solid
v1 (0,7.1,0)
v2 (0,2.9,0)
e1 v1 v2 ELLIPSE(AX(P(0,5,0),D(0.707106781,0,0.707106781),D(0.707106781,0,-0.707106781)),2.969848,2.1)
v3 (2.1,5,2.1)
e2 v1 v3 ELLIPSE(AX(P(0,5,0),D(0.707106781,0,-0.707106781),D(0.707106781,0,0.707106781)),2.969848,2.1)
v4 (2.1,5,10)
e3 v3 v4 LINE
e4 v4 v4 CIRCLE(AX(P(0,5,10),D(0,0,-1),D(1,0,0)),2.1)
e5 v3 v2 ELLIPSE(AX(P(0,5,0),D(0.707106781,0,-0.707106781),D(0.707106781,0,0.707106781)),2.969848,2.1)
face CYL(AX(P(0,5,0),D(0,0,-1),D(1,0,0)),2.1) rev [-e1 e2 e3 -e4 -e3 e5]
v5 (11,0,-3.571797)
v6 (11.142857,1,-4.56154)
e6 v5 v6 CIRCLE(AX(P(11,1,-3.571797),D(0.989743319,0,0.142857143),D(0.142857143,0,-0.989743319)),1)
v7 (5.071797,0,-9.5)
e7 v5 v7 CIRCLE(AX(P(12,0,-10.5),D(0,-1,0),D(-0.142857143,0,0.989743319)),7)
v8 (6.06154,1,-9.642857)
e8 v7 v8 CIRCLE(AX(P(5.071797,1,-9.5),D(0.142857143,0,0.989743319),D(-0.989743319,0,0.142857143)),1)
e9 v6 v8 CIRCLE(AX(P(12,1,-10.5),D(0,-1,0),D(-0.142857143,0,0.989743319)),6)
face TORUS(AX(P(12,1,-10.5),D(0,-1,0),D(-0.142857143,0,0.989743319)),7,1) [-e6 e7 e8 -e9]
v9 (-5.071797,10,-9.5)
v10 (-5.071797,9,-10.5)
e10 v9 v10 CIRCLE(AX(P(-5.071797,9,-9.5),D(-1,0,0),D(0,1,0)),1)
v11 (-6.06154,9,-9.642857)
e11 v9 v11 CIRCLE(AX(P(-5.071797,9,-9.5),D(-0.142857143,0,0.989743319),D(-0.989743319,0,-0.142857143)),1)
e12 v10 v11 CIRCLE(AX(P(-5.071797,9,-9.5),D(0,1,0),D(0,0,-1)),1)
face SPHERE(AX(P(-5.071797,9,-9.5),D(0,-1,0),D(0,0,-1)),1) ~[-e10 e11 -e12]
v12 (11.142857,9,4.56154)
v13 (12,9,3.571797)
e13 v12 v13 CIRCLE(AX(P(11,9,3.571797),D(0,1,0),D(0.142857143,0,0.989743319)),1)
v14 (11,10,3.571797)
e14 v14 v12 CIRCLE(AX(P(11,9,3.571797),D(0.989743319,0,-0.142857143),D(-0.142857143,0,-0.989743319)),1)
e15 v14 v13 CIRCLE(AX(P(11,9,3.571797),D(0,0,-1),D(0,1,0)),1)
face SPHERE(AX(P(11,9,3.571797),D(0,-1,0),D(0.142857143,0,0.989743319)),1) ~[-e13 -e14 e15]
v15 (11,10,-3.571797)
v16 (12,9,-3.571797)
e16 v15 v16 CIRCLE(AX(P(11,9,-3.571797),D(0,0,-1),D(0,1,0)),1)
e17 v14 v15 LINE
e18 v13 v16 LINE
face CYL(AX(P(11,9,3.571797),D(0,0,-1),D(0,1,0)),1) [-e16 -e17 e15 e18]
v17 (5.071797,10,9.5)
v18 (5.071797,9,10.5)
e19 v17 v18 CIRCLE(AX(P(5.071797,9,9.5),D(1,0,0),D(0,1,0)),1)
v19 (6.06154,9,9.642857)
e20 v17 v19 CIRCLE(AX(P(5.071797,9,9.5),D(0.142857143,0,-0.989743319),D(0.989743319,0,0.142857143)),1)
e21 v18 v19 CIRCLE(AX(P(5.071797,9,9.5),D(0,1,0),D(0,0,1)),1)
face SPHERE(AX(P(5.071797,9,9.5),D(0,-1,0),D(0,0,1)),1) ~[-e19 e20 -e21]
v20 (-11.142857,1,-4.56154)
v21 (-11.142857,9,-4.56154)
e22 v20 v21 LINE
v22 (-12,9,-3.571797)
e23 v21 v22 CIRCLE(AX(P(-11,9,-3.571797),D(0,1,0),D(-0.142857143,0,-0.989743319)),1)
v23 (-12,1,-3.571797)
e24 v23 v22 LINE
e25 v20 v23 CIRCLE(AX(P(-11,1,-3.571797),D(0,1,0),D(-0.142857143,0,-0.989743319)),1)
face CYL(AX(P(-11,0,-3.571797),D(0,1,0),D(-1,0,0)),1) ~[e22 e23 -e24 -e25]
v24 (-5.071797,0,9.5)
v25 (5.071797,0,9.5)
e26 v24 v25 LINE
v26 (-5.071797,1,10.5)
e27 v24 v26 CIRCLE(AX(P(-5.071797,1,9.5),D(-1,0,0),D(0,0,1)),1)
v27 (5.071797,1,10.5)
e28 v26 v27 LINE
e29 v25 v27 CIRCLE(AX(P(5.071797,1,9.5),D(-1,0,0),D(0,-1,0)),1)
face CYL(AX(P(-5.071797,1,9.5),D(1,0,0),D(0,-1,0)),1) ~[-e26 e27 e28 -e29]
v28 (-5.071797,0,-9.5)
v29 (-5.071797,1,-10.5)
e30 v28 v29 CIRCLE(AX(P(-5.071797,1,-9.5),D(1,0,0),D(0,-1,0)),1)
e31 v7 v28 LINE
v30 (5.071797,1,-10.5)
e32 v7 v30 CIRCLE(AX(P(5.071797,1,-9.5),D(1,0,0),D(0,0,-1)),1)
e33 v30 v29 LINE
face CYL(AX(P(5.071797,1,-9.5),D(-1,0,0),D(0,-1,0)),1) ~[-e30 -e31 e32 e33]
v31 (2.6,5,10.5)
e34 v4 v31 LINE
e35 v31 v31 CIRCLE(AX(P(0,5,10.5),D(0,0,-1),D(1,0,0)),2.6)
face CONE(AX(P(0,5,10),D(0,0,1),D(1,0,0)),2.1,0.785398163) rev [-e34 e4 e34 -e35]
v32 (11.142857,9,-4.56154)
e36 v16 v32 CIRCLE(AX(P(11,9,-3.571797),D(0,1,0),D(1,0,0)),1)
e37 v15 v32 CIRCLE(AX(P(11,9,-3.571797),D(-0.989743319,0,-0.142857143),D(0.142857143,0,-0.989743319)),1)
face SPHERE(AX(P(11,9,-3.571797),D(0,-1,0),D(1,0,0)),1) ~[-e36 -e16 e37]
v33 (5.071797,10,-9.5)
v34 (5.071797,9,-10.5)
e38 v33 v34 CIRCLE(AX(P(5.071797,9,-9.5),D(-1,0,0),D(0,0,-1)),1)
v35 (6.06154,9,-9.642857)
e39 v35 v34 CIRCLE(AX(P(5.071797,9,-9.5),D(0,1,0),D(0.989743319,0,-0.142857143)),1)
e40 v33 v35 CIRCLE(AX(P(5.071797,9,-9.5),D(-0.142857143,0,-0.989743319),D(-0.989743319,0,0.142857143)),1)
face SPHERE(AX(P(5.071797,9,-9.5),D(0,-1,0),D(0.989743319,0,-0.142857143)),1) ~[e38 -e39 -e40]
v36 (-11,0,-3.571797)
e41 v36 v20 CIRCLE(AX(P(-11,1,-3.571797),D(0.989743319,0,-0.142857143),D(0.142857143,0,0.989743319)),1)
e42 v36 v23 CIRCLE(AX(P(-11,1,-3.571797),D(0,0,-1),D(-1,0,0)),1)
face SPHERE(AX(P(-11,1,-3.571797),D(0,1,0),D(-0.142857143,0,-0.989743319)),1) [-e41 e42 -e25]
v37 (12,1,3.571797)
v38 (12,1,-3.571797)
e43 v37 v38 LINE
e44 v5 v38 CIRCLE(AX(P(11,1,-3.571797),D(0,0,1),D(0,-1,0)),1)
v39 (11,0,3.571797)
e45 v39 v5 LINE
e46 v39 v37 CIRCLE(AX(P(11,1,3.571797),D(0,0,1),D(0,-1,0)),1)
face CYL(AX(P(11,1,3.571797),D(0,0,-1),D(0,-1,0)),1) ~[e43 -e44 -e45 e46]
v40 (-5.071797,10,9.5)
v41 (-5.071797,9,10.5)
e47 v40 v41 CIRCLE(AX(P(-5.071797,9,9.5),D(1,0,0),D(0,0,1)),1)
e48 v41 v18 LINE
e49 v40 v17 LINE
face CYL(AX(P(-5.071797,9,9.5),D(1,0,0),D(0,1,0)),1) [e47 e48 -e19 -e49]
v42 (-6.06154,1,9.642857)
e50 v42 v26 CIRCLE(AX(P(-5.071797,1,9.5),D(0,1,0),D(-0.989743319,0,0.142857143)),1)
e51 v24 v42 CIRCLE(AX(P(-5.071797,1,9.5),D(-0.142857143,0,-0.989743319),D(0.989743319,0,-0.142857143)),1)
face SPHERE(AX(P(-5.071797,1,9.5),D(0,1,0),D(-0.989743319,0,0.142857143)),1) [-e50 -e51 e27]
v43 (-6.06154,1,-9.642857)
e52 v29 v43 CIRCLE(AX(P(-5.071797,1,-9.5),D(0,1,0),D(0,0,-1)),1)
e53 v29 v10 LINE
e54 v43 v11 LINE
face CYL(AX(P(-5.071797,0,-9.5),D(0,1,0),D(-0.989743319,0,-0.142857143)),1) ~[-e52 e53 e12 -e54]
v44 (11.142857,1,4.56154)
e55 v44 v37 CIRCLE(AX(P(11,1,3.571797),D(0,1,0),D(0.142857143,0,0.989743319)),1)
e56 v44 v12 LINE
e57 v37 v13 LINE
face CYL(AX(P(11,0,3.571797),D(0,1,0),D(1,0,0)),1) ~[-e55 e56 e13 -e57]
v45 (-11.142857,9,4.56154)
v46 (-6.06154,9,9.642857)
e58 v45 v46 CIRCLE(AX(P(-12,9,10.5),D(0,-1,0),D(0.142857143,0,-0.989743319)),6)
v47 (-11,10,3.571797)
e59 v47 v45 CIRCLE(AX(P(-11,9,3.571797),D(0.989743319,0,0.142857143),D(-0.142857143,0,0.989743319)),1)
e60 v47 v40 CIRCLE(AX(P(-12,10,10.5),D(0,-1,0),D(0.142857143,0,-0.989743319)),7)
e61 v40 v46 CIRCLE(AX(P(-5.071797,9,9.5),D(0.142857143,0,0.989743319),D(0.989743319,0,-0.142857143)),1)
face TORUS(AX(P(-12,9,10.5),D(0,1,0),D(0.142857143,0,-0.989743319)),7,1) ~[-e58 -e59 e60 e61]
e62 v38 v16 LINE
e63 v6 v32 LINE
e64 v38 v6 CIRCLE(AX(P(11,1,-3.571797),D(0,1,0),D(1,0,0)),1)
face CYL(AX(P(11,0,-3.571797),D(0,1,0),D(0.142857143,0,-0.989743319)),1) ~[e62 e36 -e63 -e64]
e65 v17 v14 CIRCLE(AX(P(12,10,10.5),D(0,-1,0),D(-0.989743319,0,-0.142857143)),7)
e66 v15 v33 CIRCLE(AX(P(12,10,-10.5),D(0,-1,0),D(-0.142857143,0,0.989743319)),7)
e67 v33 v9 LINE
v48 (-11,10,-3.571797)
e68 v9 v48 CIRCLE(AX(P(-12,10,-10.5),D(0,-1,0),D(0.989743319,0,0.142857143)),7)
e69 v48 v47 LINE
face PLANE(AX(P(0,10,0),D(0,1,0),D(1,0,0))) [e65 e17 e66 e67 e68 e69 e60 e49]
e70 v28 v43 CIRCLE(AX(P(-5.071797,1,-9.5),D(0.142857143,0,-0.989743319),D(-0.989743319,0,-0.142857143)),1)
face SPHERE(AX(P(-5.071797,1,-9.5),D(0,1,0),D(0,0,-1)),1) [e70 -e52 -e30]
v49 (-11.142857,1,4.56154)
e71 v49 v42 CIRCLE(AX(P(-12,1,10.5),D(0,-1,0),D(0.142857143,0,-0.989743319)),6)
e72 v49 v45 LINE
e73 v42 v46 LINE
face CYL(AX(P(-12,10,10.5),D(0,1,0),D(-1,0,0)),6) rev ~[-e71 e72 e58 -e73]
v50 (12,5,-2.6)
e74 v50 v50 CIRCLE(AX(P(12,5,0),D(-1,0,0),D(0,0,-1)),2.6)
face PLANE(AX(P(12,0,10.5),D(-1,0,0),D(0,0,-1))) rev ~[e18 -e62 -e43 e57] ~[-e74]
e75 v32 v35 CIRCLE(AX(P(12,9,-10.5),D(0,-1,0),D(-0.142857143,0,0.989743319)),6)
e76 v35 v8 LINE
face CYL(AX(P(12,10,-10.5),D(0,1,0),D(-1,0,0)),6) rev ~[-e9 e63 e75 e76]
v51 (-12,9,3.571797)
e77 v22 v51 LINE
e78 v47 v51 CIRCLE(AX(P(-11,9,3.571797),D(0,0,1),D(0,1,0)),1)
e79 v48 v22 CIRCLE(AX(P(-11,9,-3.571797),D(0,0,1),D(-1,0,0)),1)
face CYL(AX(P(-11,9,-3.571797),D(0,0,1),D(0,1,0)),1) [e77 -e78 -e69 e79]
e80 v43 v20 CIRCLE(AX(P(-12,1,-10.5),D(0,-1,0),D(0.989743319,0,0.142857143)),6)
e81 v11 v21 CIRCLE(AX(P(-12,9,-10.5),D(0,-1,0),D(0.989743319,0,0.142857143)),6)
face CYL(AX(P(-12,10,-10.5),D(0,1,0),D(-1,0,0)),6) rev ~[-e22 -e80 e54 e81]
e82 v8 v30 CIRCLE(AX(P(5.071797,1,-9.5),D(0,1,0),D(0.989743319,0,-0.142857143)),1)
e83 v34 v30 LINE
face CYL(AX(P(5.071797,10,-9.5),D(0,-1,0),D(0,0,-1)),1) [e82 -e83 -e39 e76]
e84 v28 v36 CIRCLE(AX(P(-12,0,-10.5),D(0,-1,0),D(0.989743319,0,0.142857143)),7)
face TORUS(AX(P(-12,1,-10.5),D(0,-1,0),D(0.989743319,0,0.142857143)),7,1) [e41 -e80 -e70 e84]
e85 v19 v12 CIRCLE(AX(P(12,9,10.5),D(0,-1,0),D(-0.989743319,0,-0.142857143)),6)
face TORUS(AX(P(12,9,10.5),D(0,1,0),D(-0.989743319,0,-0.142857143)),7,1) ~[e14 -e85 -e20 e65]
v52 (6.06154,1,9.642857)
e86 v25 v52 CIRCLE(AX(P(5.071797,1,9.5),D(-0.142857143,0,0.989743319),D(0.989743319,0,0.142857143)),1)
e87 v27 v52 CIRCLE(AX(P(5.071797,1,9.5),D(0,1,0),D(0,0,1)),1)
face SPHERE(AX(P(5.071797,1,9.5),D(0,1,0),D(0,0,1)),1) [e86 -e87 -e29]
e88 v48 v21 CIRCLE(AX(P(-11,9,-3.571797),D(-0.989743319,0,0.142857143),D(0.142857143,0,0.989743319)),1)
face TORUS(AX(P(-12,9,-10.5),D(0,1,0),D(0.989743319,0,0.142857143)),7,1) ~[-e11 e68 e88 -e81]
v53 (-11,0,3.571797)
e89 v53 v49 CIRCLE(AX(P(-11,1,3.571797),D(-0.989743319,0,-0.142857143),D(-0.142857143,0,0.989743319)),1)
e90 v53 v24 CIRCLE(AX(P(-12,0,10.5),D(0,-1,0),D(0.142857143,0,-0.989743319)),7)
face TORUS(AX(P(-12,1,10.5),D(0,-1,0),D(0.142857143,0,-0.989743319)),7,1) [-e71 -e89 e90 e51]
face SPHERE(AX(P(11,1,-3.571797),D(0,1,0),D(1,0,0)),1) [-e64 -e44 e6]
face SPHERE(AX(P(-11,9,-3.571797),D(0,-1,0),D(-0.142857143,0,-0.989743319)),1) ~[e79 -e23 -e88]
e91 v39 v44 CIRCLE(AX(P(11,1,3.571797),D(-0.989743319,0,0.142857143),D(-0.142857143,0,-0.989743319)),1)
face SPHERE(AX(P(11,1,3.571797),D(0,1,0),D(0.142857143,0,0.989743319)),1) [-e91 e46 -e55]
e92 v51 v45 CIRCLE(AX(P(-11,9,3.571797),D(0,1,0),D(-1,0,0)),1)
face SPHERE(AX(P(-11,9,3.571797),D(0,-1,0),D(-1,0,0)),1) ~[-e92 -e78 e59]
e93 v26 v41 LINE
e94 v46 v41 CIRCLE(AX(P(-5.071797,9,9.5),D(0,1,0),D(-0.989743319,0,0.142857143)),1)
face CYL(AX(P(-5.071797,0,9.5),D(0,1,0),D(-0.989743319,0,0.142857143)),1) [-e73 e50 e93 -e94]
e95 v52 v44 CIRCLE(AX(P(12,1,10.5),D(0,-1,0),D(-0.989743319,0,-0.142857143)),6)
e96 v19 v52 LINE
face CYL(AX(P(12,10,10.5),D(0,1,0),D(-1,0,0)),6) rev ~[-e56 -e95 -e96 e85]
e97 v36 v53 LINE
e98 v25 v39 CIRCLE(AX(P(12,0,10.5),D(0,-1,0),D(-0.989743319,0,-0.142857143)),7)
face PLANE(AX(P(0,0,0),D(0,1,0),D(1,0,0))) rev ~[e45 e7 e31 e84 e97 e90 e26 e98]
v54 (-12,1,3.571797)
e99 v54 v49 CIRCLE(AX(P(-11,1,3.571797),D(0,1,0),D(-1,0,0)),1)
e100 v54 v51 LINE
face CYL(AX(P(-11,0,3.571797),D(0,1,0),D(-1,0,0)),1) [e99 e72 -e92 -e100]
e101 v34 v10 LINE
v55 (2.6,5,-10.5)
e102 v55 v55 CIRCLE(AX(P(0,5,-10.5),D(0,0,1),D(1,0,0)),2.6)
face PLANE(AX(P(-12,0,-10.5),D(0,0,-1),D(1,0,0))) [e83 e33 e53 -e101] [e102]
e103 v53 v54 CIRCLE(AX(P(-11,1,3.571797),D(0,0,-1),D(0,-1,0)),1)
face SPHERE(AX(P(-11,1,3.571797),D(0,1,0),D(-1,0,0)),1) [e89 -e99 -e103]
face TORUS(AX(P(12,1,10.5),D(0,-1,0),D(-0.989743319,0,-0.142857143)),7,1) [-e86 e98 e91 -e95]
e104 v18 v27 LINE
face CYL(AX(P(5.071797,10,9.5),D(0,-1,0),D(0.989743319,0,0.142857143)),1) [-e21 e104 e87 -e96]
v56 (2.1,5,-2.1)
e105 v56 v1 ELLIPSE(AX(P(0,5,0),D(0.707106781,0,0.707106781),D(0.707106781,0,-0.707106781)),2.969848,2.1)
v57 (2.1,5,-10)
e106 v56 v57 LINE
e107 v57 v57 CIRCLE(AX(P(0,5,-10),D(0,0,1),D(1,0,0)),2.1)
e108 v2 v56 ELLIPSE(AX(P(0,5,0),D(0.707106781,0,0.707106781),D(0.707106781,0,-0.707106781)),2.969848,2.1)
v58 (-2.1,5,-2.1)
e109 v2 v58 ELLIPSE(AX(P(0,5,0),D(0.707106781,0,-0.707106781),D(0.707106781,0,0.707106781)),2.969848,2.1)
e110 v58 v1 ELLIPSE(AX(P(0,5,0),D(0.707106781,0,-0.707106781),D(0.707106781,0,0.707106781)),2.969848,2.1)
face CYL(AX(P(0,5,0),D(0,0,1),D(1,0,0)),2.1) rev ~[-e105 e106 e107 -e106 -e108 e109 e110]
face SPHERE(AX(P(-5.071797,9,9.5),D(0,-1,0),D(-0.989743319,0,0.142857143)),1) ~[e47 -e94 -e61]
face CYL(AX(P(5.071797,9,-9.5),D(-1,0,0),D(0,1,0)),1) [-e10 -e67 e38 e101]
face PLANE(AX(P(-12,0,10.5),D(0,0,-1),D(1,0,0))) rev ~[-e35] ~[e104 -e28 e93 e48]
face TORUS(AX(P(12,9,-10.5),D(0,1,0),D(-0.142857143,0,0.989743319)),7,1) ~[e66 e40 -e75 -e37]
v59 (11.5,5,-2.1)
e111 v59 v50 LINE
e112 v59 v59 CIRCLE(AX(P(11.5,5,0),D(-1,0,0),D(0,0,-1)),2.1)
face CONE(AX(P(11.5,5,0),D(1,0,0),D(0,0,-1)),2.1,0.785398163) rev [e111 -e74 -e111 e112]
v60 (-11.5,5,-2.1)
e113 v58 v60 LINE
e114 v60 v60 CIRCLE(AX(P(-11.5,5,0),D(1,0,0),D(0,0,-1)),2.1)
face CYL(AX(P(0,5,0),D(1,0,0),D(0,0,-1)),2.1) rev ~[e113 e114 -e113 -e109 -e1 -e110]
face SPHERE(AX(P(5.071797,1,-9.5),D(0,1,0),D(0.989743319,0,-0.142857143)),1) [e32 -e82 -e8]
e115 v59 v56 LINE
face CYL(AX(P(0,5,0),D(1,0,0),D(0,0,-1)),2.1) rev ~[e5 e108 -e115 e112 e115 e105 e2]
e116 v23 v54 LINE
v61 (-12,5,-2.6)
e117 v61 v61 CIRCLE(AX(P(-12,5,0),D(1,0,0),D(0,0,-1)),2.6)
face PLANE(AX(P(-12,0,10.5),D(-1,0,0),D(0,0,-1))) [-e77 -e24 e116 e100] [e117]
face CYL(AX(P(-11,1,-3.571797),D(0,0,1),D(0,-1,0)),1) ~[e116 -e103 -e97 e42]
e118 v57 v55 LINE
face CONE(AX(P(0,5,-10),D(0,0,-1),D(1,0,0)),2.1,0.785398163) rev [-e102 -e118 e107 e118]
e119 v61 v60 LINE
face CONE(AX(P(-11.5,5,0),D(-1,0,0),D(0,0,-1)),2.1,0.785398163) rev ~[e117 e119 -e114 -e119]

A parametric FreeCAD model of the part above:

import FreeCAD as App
import Part
import Sketcher
from FreeCAD import Vector


def edges_at(feature, points):
    """Names of the edges that pass closest to the given points."""
    edges = feature.Shape.Edges
    near = lambda p: min(range(len(edges)), key=lambda i: edges[i].distToShape(Part.Vertex(*p))[0])
    return sorted({f"Edge{near(p) + 1}" for p in points})


def add_polygon(sketch, points):
    """Adds a closed chain of lines whose ends are joined by coincident constraints."""
    first, n = sketch.GeometryCount, len(points)
    for a, b in zip(points, points[1:] + points[:1]):
        sketch.addGeometry(Part.LineSegment(App.Vector(*a, 0), App.Vector(*b, 0)), False)
    for i in range(n):
        sketch.addConstraint(Sketcher.Constraint("Coincident", first + i, 2, first + (i + 1) % n, 1))

doc = App.newDocument("Part")
body = doc.addObject("PartDesign::Body", "Body")

sketch1 = body.newObject("Sketcher::SketchObject", "Sketch")
sketch1.AttachmentSupport = (doc.getObject("XZ_Plane"), [""])
sketch1.MapMode = "FlatFace"
add_polygon(sketch1, [(-12, -10), (-12, 10), (12, 10), (12, -10)])
sketch1.addConstraint(Sketcher.Constraint("Vertical", 0))
sketch1.addConstraint(Sketcher.Constraint("Horizontal", 1))
sketch1.addConstraint(Sketcher.Constraint("Vertical", 2))
sketch1.addConstraint(Sketcher.Constraint("Horizontal", 3))
sketch1.addConstraint(Sketcher.Constraint("Symmetric", 0, 2, 2, 2, -1, 1))
sketch1.addConstraint(Sketcher.Constraint("DistanceX", 1, 1, 1, 2, 24.0))
sketch1.addConstraint(Sketcher.Constraint("DistanceY", 0, 1, 0, 2, 21.0))
pad1 = body.newObject("PartDesign::Pad", "Pad")
pad1.Profile = sketch1
pad1.Length = 10
pad1.Reversed = True

sketch2 = body.newObject("Sketcher::SketchObject", "Sketch001")
sketch2.AttachmentSupport = (doc.getObject("YZ_Plane"), [""])
sketch2.MapMode = "FlatFace"
sketch2.addGeometry(Part.Circle(Vector(5, 0, 0), Vector(0, 0, 1), 2.1), False)
sketch2.addConstraint(Sketcher.Constraint("PointOnObject", 0, 3, -1))
sketch2.addConstraint(Sketcher.Constraint("Diameter", 0, 4.2))
sketch2.addConstraint(Sketcher.Constraint("DistanceX", -1, 1, 0, 3, 5.0))
pocket1 = body.newObject("PartDesign::Pocket", "Pocket")
pocket1.Profile = sketch2
pocket1.Type = "ThroughAll"
pocket1.Midplane = True

sketch3 = body.newObject("Sketcher::SketchObject", "Sketch002")
sketch3.AttachmentSupport = (doc.getObject("XY_Plane"), [""])
sketch3.MapMode = "FlatFace"
sketch3.addGeometry(Part.Circle(Vector(0, 5, 0), Vector(0, 0, 1), 2.1), False)
sketch3.addConstraint(Sketcher.Constraint("PointOnObject", 0, 3, -2))
sketch3.addConstraint(Sketcher.Constraint("Diameter", 0, 4.2))
sketch3.addConstraint(Sketcher.Constraint("DistanceY", -1, 1, 0, 3, 5.0))
pocket2 = body.newObject("PartDesign::Pocket", "Pocket001")
pocket2.Profile = sketch3
pocket2.Type = "ThroughAll"
pocket2.Midplane = True

sketch4 = body.newObject("Sketcher::SketchObject", "Sketch003")
sketch4.AttachmentSupport = (doc.getObject("XZ_Plane"), [""])
sketch4.MapMode = "FlatFace"
sketch4.AttachmentOffset = App.Placement(Vector(0, 0, -10), App.Rotation())
sketch4.addGeometry(Part.Circle(Vector(-12, -10, 0), Vector(0, 0, 1), 6), False)
sketch4.addGeometry(Part.Circle(Vector(12, -10, 0), Vector(0, 0, 1), 6), False)
sketch4.addGeometry(Part.Circle(Vector(12, 10, 0), Vector(0, 0, 1), 6), False)
sketch4.addGeometry(Part.Circle(Vector(-12, 10, 0), Vector(0, 0, 1), 6), False)
sketch4.addConstraint(Sketcher.Constraint("Equal", 0, 1))
sketch4.addConstraint(Sketcher.Constraint("Equal", 1, 2))
sketch4.addConstraint(Sketcher.Constraint("Equal", 2, 3))
sketch4.addConstraint(Sketcher.Constraint("Symmetric", 0, 3, 2, 3, -1, 1))
sketch4.addConstraint(Sketcher.Constraint("Symmetric", 1, 3, 3, 3, -1, 1))
sketch4.addConstraint(Sketcher.Constraint("Symmetric", 0, 3, 1, 3, -2))
sketch4.addConstraint(Sketcher.Constraint("Diameter", 0, 12.0))
sketch4.addConstraint(Sketcher.Constraint("DistanceX", 0, 3, -1, 1, 12.0))
sketch4.addConstraint(Sketcher.Constraint("DistanceY", 1, 3, 2, 3, 21.0))
pocket3 = body.newObject("PartDesign::Pocket", "Pocket002")
pocket3.Profile = sketch4
pocket3.Length = 10
pocket3.Reversed = True
doc.recompute()

fillet = body.newObject("PartDesign::Fillet", "Fillet")
fillet.Base = (pocket3, edges_at(pocket3, [
    (-6, 5, -10.5),
    (-12, 5, -4.5),
    (6, 5, -10.5),
    (12, 5, -4.5),
    (6, 5, 10.5),
    (12, 5, 4.5),
    (-6, 5, 10.5),
    (-12, 5, 4.5),
]))
fillet.Radius = 1
doc.recompute()

fillet2 = body.newObject("PartDesign::Fillet", "Fillet001")
fillet2.Base = (fillet, edges_at(fillet, [
    (12, 10, 0),
    (12, 0, 0),
    (0, 0, 10.5),
    (-7.757, 0, 6.257),
    (-12, 0, 0),
    (-7.757, 0, -6.257),
    (0, 0, -10.5),
    (7.757, 0, -6.257),
    (7.757, 0, 6.257),
    (11.756, 0, -4.226),
    (5.726, 0, -10.256),
    (-5.726, 0, -10.256),
    (-11.756, 0, -4.226),
    (-11.756, 0, 4.226),
    (-5.726, 0, 10.256),
    (5.726, 0, 10.256),
    (11.756, 0, 4.226),
    (7.757, 10, 6.257),
    (-7.757, 10, 6.257),
    (0, 10, 10.5),
    (7.757, 10, -6.257),
    (0, 10, -10.5),
    (-7.757, 10, -6.257),
    (-12, 10, 0),
    (11.756, 10, -4.226),
    (5.726, 10, -10.256),
    (-5.726, 10, -10.256),
    (-11.756, 10, -4.226),
    (-11.756, 10, 4.226),
    (-5.726, 10, 10.256),
    (5.726, 10, 10.256),
    (11.756, 10, 4.226),
]))
fillet2.Radius = 1
doc.recompute()

chamfer = body.newObject("PartDesign::Chamfer", "Chamfer")
chamfer.Base = (fillet2, edges_at(fillet2, [
    (-12, 5, 2.1),
    (12, 5, 2.1),
    (-2.1, 5, -10.5),
    (-2.1, 5, 10.5),
]))
chamfer.Size = 0.5

doc.recompute()
